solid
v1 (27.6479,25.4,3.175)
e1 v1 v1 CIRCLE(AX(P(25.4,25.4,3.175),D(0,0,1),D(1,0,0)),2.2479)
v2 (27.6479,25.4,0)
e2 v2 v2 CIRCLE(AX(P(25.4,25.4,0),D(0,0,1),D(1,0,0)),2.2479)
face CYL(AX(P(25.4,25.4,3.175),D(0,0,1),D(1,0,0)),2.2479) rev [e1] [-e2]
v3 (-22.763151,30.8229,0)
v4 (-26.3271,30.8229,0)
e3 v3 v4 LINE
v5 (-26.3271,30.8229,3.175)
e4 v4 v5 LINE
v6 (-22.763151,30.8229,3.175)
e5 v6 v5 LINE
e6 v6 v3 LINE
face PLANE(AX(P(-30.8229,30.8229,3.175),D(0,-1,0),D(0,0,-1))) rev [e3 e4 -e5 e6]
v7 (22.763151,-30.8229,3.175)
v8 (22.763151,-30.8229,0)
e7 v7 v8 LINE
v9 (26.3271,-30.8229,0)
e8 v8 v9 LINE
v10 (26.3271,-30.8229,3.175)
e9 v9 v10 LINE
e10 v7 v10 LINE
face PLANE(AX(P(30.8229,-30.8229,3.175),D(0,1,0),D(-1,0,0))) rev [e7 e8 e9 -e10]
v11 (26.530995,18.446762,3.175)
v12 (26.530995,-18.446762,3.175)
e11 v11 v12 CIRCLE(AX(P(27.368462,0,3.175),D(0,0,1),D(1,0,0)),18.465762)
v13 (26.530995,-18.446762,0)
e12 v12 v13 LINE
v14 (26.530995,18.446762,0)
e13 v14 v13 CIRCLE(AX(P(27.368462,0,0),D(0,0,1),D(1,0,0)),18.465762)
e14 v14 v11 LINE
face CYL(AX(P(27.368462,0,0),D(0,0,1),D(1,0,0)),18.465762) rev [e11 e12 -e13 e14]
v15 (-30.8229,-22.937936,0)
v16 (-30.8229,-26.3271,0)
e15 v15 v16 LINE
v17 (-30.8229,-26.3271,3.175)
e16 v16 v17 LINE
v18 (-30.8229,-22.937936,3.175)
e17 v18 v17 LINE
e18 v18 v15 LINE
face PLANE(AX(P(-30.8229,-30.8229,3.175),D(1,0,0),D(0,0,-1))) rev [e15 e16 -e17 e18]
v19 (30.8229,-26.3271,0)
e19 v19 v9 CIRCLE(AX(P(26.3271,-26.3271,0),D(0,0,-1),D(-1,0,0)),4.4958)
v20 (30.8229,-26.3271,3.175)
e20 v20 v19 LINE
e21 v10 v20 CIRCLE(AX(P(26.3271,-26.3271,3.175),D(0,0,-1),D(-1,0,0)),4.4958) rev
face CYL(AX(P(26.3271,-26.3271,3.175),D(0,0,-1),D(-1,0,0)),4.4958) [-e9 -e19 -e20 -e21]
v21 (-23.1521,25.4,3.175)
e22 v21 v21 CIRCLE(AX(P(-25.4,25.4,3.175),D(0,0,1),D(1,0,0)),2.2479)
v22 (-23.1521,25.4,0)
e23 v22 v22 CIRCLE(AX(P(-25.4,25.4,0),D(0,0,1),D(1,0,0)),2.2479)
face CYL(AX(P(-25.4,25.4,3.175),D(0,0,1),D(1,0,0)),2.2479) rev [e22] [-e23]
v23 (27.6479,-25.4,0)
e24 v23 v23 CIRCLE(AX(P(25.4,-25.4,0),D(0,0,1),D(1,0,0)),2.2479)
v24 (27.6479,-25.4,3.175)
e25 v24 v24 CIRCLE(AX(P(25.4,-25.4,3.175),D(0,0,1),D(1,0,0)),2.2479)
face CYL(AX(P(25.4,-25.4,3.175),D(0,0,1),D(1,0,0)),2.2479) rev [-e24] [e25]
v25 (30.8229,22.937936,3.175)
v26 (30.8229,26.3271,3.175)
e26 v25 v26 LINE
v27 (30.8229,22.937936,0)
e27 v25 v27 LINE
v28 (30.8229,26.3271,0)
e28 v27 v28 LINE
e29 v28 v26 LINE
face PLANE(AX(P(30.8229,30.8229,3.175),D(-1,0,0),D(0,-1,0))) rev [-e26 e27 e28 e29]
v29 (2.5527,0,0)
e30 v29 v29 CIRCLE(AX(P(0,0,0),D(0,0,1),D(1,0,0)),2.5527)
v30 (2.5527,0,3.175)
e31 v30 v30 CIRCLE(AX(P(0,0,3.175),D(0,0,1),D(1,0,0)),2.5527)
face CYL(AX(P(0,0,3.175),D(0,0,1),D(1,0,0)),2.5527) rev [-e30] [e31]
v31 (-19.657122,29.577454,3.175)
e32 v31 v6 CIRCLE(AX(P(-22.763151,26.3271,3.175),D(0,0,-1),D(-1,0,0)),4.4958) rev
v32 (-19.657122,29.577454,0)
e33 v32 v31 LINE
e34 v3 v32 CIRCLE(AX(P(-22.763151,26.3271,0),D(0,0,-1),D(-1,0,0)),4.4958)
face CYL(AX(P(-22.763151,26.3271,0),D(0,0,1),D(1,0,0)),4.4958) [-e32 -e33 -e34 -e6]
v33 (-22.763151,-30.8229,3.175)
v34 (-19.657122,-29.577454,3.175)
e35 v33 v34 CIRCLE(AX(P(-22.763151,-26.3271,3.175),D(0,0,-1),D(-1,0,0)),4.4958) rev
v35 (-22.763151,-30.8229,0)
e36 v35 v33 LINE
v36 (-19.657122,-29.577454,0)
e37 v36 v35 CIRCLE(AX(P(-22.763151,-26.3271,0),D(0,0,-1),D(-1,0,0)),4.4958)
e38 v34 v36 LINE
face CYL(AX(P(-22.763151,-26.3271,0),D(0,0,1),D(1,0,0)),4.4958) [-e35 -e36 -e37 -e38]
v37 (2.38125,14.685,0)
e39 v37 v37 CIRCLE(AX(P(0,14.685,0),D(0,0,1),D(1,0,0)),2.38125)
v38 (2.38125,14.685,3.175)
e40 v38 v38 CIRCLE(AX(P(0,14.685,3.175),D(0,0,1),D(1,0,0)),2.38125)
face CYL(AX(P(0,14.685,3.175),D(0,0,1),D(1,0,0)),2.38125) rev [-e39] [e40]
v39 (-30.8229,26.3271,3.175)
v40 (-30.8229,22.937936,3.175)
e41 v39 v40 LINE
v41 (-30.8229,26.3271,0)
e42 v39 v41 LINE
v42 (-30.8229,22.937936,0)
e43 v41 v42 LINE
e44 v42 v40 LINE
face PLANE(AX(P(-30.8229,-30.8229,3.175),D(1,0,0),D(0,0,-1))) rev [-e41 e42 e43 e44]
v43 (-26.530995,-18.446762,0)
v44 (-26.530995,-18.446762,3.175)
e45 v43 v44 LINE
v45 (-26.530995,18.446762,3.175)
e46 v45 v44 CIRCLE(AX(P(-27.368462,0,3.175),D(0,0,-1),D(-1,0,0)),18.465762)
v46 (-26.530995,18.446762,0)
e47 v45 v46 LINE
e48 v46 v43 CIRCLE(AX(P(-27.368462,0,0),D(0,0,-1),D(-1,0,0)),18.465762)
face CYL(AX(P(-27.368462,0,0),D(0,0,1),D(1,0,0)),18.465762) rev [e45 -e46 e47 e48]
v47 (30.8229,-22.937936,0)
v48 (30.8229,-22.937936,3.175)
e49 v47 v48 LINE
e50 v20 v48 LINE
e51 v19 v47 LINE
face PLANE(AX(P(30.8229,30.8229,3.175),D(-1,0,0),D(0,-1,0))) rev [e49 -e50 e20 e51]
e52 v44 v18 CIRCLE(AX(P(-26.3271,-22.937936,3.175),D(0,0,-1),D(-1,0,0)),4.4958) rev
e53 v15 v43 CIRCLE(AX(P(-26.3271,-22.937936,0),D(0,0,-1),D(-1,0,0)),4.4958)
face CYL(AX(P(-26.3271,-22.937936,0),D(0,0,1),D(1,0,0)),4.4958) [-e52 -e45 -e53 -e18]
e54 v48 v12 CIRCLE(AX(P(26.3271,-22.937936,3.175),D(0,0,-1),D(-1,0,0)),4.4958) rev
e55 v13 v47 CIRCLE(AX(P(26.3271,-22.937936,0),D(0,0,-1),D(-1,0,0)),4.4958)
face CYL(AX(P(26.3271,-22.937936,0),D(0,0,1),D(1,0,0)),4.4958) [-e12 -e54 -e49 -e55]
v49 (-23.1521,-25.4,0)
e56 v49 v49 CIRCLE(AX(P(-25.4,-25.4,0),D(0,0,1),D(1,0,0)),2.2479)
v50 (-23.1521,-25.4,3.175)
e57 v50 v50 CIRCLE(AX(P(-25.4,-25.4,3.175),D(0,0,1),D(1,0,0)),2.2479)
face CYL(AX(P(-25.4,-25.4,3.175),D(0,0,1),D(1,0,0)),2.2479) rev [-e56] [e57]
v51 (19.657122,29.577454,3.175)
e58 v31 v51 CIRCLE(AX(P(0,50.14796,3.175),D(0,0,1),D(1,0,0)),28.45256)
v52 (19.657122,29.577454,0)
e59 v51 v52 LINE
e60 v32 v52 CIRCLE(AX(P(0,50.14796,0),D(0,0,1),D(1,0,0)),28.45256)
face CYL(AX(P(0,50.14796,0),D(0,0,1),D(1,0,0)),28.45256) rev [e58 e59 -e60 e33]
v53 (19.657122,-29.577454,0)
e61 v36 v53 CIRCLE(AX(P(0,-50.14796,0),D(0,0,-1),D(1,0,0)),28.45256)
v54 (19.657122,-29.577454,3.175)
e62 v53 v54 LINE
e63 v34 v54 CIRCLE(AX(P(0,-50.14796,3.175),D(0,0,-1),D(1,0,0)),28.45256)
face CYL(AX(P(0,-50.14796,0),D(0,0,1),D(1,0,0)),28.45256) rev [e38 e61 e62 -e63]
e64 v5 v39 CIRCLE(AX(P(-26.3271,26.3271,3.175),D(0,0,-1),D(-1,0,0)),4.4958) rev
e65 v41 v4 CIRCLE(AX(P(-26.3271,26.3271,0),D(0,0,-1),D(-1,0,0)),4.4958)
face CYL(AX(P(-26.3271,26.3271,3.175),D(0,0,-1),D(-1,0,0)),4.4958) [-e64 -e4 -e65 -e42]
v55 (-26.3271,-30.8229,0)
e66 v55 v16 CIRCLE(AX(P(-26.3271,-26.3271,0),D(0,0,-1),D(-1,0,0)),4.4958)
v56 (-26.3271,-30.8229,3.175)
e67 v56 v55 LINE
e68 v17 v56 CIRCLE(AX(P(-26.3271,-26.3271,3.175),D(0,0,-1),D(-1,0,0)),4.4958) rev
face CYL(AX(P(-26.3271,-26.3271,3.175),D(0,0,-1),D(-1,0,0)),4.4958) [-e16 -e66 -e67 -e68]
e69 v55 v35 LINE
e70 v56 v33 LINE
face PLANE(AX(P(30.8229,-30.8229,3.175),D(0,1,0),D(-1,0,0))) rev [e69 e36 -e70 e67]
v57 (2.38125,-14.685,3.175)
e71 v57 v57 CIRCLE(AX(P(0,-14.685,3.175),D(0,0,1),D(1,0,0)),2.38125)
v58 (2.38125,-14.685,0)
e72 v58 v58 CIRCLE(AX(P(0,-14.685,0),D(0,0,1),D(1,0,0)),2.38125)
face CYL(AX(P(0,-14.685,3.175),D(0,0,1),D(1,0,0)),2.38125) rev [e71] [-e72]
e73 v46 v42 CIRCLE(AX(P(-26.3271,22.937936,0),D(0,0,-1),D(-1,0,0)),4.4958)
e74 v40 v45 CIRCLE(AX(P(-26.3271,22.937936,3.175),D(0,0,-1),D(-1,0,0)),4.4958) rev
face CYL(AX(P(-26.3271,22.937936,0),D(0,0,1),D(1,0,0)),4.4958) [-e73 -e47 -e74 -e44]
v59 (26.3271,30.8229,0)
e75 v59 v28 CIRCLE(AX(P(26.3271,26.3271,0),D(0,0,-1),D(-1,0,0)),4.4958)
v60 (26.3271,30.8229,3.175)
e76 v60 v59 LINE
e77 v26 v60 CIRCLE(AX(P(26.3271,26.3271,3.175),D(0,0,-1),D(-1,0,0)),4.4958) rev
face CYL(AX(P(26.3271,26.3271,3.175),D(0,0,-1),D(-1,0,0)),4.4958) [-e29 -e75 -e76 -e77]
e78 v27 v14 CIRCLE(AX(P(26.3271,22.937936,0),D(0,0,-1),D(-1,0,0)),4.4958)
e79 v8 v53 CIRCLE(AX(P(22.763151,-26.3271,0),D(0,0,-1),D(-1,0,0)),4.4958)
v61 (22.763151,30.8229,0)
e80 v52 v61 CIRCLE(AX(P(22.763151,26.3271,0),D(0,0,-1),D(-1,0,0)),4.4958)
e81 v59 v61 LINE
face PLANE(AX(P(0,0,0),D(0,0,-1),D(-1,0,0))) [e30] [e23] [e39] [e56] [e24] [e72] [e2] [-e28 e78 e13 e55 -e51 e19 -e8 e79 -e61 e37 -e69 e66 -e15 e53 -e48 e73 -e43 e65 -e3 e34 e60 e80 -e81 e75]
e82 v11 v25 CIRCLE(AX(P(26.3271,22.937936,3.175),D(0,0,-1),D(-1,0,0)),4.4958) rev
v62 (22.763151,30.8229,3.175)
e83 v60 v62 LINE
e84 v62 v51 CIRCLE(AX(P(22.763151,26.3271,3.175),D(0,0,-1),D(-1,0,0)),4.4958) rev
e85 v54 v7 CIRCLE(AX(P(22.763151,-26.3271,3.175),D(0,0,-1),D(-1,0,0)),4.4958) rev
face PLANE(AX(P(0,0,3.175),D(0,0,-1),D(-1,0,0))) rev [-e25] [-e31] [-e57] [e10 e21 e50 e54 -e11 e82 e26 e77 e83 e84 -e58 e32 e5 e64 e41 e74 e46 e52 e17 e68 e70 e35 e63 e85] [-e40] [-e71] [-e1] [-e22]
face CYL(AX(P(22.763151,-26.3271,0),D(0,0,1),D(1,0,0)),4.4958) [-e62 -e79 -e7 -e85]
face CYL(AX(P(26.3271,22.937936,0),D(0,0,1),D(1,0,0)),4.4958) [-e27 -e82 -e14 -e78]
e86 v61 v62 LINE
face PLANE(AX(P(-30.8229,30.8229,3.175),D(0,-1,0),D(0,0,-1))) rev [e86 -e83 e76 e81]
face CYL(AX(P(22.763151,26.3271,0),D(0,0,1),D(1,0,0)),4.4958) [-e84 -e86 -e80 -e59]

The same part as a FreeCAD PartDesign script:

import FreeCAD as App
import Part
import Sketcher

V = App.Vector
Q = App.Units.Quantity


def edges_at(feature, points):
    """Names of the edges that pass closest to the given points."""
    edges = feature.Shape.Edges
    near = lambda p: min(range(len(edges)), key=lambda i: edges[i].distToShape(Part.Vertex(*p))[0])
    return sorted({f"Edge{near(p) + 1}" for p in points})


def add_polygon(sketch, points):
    """Adds a closed chain of lines whose ends are joined by coincident constraints."""
    first, n = sketch.GeometryCount, len(points)
    for a, b in zip(points, points[1:] + points[:1]):
        sketch.addGeometry(Part.LineSegment(App.Vector(*a, 0), App.Vector(*b, 0)), False)
    for i in range(n):
        sketch.addConstraint(Sketcher.Constraint("Coincident", first + i, 2, first + (i + 1) % n, 1))

doc = App.newDocument("Part")
body = doc.addObject("PartDesign::Body", "Body")

# Sketch on XY plane
sketch1 = doc.addObject("Sketcher::SketchObject", "Sketch")
body.addObject(sketch1)
sketch1.AttachmentSupport = (doc.XY_Plane, [""])
sketch1.MapMode = "FlatFace"
add_polygon(sketch1, [(-30.8229, 30.8229), (-30.8229, -30.8229), (30.8229, -30.8229), (30.8229, 30.8229)])  # lines 0-3
sketch1.addConstraint(Sketcher.Constraint("Vertical", 0))
sketch1.addConstraint(Sketcher.Constraint("Horizontal", 1))
sketch1.addConstraint(Sketcher.Constraint("Vertical", 2))
sketch1.addConstraint(Sketcher.Constraint("Horizontal", 3))
sketch1.addConstraint(Sketcher.Constraint("Symmetric", 0, 2, 2, 2, -1, 1))
sketch1.addConstraint(Sketcher.Constraint("Equal", 3, 0))
sketch1.addConstraint(Sketcher.Constraint("DistanceX", 1, 1, 1, 2, Q("2.427 in")))
pad1 = doc.addObject("PartDesign::Pad", "Pad")
body.addObject(pad1)
pad1.Profile = sketch1
pad1.Length = Q("0.125 in")

# Sketch on XY plane
sketch2 = doc.addObject("Sketcher::SketchObject", "Sketch001")
body.addObject(sketch2)
sketch2.AttachmentSupport = (doc.XY_Plane, [""])
sketch2.MapMode = "FlatFace"
sketch2.AttachmentOffset = App.Placement(V(0, 0, 0.125 * 25.4), App.Rotation())
sketch2.addGeometry(Part.Circle(V(0, -14.685, 0), V(0, 0, 1), 2.38125), False)
sketch2.addGeometry(Part.Circle(V(0, 14.685, 0), V(0, 0, 1), 2.38125), False)
sketch2.addConstraint(Sketcher.Constraint("Equal", 0, 1))
sketch2.addConstraint(Sketcher.Constraint("Symmetric", 0, 3, 1, 3, -1, 1))
sketch2.addConstraint(Sketcher.Constraint("PointOnObject", 0, 3, -2))
sketch2.addConstraint(Sketcher.Constraint("Diameter", 0, Q("0.1875 in")))
sketch2.addConstraint(Sketcher.Constraint("DistanceY", 0, 3, -1, 1, Q("14.685 mm")))
doc.recompute()
hole = doc.addObject("PartDesign::Hole", "Hole")
body.addObject(hole)
hole.Profile = sketch2
hole.ThreadType = "None"
hole.Diameter = Q("0.1875 in")
hole.DepthType = "ThroughAll"

# Sketch on XY plane
sketch3 = doc.addObject("Sketcher::SketchObject", "Sketch002")
body.addObject(sketch3)
sketch3.AttachmentSupport = (doc.XY_Plane, [""])
sketch3.MapMode = "FlatFace"
sketch3.AttachmentOffset = App.Placement(V(0, 0, 0.125 * 25.4), App.Rotation())
sketch3.addGeometry(Part.Circle(V(-25.4, 25.4, 0), V(0, 0, 1), 2.2479), False)
sketch3.addGeometry(Part.Circle(V(-25.4, -25.4, 0), V(0, 0, 1), 2.2479), False)
sketch3.addGeometry(Part.Circle(V(25.4, -25.4, 0), V(0, 0, 1), 2.2479), False)
sketch3.addGeometry(Part.Circle(V(25.4, 25.4, 0), V(0, 0, 1), 2.2479), False)
sketch3.addConstraint(Sketcher.Constraint("Equal", 0, 1))
sketch3.addConstraint(Sketcher.Constraint("Equal", 1, 2))
sketch3.addConstraint(Sketcher.Constraint("Equal", 2, 3))
sketch3.addConstraint(Sketcher.Constraint("Symmetric", 0, 3, 2, 3, -1, 1))
sketch3.addConstraint(Sketcher.Constraint("Symmetric", 1, 3, 3, 3, -1, 1))
sketch3.addConstraint(Sketcher.Constraint("Symmetric", 1, 3, 2, 3, -2))
sketch3.addConstraint(Sketcher.Constraint("Diameter", 0, Q("0.177 in")))
sketch3.addConstraint(Sketcher.Constraint("DistanceX", 0, 3, -1, 1, Q("1 in")))
sketch3.addConstraint(Sketcher.Constraint("DistanceY", -1, 1, 0, 3, Q("1 in")))
doc.recompute()
hole2 = doc.addObject("PartDesign::Hole", "Hole001")
body.addObject(hole2)
hole2.Profile = sketch3
hole2.ThreadType = "None"
hole2.Diameter = Q("0.177 in")
hole2.DepthType = "ThroughAll"

# Sketch on XY plane
sketch4 = doc.addObject("Sketcher::SketchObject", "Sketch003")
body.addObject(sketch4)
sketch4.AttachmentSupport = (doc.XY_Plane, [""])
sketch4.MapMode = "FlatFace"
sketch4.AttachmentOffset = App.Placement(V(0, 0, 0.125 * 25.4), App.Rotation())
sketch4.addGeometry(Part.Circle(V(0, 0, 0), V(0, 0, 1), 2.5527), False)
sketch4.addConstraint(Sketcher.Constraint("Coincident", 0, 3, -1, 1))
sketch4.addConstraint(Sketcher.Constraint("Diameter", 0, Q("0.201 in")))
doc.recompute()
hole3 = doc.addObject("PartDesign::Hole", "Hole002")
body.addObject(hole3)
hole3.Profile = sketch4
hole3.ThreadType = "None"
hole3.Diameter = Q("0.201 in")
hole3.DepthType = "ThroughAll"
doc.recompute()

fillet = doc.addObject("PartDesign::Fillet", "Fillet")
body.addObject(fillet)
fillet.Base = (hole3, edges_at(hole3, [
    (-30.823, 30.823, 1.587),
    (30.823, 30.823, 1.587),
    (30.823, -30.823, 1.587),
    (-30.823, -30.823, 1.587),
]))
fillet.Radius = Q("0.177 in")

# Sketch on XY plane
sketch5 = doc.addObject("Sketcher::SketchObject", "Sketch004")
body.addObject(sketch5)
sketch5.AttachmentSupport = (doc.XY_Plane, [""])
sketch5.MapMode = "FlatFace"
sketch5.AttachmentOffset = App.Placement(V(0, 0, 0.125 * 25.4), App.Rotation())
sketch5.addGeometry(Part.Circle(V(0, 50.14796, 0), V(0, 0, 1), 28.45256), False)
sketch5.addConstraint(Sketcher.Constraint("PointOnObject", 0, 3, -2))
sketch5.addConstraint(Sketcher.Constraint("Diameter", 0, Q("56.905119 mm")))
sketch5.addConstraint(Sketcher.Constraint("DistanceY", -1, 1, 0, 3, Q("50.14796 mm")))
pocket1 = doc.addObject("PartDesign::Pocket", "Pocket")
body.addObject(pocket1)
pocket1.Profile = sketch5
pocket1.Type = "ThroughAll"

# Sketch on XY plane
sketch6 = doc.addObject("Sketcher::SketchObject", "Sketch005")
body.addObject(sketch6)
sketch6.AttachmentSupport = (doc.XY_Plane, [""])
sketch6.MapMode = "FlatFace"
sketch6.AttachmentOffset = App.Placement(V(0, 0, 0.125 * 25.4), App.Rotation())
sketch6.addGeometry(Part.Circle(V(27.368462, 0, 0), V(0, 0, 1), 18.465762), False)
sketch6.addConstraint(Sketcher.Constraint("PointOnObject", 0, 3, -1))
sketch6.addConstraint(Sketcher.Constraint("Diameter", 0, Q("36.931525 mm")))
sketch6.addConstraint(Sketcher.Constraint("DistanceX", -1, 1, 0, 3, Q("27.368462 mm")))
pocket2 = doc.addObject("PartDesign::Pocket", "Pocket001")
body.addObject(pocket2)
pocket2.Profile = sketch6
pocket2.Type = "ThroughAll"
doc.recompute()

mirrored = doc.addObject("PartDesign::Mirrored", "Mirrored")
body.addObject(mirrored)
mirrored.Originals = [pocket1]
mirrored.MirrorPlane = (doc.XZ_Plane, [""])
body.Tip = mirrored
doc.recompute()

mirrored2 = doc.addObject("PartDesign::Mirrored", "Mirrored001")
body.addObject(mirrored2)
mirrored2.Originals = [pocket2]
mirrored2.MirrorPlane = (doc.YZ_Plane, [""])
body.Tip = mirrored2
doc.recompute()

fillet2 = doc.addObject("PartDesign::Fillet", "Fillet001")
body.addObject(fillet2)
fillet2.Base = (mirrored2, edges_at(mirrored2, [
    (-30.823, 18.14, 1.587),
    (-30.823, -18.14, 1.587),
    (20.883, 30.823, 1.587),
    (-20.883, 30.823, 1.587),
    (30.823, -18.14, 1.587),
    (30.823, 18.14, 1.587),
    (-20.883, -30.823, 1.587),
    (20.883, -30.823, 1.587),
]))
fillet2.Radius = Q("0.177 in")

doc.recompute()
